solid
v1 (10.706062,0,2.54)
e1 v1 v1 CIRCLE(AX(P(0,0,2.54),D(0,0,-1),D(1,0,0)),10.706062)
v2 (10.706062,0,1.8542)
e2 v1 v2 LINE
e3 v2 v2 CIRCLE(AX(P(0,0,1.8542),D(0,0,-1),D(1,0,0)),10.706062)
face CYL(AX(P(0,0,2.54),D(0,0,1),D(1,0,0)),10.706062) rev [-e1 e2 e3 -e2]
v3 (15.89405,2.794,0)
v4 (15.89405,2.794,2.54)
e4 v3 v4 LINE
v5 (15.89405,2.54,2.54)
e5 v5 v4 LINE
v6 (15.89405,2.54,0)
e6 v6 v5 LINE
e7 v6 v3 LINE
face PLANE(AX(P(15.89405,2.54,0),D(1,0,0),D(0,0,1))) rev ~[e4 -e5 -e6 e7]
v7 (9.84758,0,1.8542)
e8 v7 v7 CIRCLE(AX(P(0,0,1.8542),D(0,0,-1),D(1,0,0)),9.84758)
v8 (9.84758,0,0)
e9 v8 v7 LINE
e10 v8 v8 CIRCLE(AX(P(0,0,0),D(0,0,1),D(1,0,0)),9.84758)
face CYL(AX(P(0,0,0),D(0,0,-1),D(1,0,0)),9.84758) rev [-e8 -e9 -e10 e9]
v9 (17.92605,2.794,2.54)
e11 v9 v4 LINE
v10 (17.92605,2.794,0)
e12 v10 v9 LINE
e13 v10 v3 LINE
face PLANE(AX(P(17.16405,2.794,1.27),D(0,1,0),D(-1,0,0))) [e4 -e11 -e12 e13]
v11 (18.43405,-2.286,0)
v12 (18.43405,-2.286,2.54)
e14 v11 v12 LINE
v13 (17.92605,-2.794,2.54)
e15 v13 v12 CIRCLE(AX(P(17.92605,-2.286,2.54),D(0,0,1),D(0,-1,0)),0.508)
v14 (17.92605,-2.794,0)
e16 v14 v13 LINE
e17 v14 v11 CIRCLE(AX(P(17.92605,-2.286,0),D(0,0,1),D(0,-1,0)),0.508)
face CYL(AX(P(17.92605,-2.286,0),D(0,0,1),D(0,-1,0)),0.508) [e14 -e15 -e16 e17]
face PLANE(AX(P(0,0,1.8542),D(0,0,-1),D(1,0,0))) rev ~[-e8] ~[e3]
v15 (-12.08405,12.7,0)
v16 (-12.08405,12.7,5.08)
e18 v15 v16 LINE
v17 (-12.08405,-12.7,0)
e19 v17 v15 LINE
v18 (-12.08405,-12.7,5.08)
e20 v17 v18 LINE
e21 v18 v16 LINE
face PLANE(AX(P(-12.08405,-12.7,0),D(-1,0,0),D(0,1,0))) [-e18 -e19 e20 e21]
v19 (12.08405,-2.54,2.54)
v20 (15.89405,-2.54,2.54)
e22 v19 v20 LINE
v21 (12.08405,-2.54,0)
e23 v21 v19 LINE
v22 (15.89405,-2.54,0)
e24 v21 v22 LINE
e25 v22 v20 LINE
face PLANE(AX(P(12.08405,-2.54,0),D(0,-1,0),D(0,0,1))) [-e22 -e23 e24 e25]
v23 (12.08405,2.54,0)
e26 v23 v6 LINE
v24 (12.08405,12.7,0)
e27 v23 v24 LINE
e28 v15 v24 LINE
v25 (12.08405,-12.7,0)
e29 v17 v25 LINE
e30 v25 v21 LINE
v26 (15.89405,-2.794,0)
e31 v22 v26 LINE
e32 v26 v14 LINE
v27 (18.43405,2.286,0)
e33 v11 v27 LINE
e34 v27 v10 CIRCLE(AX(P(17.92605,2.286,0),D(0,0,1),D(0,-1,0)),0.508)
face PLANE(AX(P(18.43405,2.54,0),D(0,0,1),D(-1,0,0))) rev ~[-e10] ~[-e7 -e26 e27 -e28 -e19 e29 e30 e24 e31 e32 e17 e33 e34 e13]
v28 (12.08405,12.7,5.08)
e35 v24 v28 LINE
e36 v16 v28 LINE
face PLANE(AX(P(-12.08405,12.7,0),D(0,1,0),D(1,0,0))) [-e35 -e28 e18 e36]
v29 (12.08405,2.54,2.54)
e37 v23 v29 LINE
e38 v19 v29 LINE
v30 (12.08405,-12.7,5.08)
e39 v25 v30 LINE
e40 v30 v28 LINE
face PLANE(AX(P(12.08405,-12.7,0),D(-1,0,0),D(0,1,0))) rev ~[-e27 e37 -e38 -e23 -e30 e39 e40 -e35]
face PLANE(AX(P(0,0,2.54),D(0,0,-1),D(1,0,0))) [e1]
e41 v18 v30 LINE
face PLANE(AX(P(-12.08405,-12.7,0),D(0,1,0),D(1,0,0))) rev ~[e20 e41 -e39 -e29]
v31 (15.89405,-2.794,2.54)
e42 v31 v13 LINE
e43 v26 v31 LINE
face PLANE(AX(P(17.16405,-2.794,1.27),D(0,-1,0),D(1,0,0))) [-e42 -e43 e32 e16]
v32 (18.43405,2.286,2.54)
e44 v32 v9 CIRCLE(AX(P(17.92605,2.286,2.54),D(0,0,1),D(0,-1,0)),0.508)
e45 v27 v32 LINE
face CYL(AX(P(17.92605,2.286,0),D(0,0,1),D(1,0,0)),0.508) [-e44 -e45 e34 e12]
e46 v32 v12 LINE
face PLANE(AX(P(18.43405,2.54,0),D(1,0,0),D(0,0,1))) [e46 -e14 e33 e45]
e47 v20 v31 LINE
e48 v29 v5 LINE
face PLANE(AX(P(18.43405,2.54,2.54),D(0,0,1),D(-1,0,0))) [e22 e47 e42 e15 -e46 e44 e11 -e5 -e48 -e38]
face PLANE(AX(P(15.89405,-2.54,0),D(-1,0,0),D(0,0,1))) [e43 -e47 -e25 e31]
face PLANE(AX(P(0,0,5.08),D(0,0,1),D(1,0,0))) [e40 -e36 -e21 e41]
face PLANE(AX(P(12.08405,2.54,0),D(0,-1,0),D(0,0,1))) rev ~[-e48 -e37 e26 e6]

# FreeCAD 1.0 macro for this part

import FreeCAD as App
import Part
import Sketcher
from FreeCAD import Vector
Q = App.Units.Quantity


def edges_at(feature, points):
    """Names of the edges that pass closest to the given points."""
    edges = feature.Shape.Edges
    near = lambda p: min(range(len(edges)), key=lambda i: edges[i].distToShape(Part.Vertex(*p))[0])
    return sorted({f"Edge{near(p) + 1}" for p in points})

doc = App.newDocument("Part")
params = doc.addObject("Spreadsheet::Sheet", "Params")
for row, (alias, value) in enumerate([
    ("sketch1_height", "1 in"),
    ("pad1_length", "0.2 in"),
    ("pocket1_length", "0.1 in"),
    ("pocket2_length", "0.027 in"),
    ("sketch4_width", "0.2 in"),
    ("sketch4_height", "0.1 in"),
    ("pad2_length", "0.25 in"),
    ("sketch5_width", "0.1 in"),
    ("pad3_length", "0.01 in"),
    ("fillet_radius", "0.02 in"),
    ("sketch6_width", "0.1 in"),
    ("pad4_length", "0.01 in"),
    ("fillet2_radius", "0.02 in"),
], start=1):
    params.set(f"A{row}", alias)
    params.set(f"B{row}", "=" + value)
    params.setAlias(f"B{row}", alias)

body = doc.addObject("PartDesign::Body", "Body")

sketch1 = body.newObject("Sketcher::SketchObject", "Sketch")
sketch1.AttachmentSupport = (doc.getObject("XY_Plane"), [""])
sketch1.MapMode = "FlatFace"
sketch1.addGeometry([
    Part.LineSegment(Vector(-12, 13, 0), Vector(-12, -13, 0)),
    Part.LineSegment(Vector(-12, -13, 0), Vector(12, -13, 0)),
    Part.LineSegment(Vector(12, -13, 0), Vector(12, 13, 0)),
    Part.LineSegment(Vector(12, 13, 0), Vector(-12, 13, 0)),
], False)
sketch1.addConstraint([
    Sketcher.Constraint("Coincident", 0, 2, 1, 1),
    Sketcher.Constraint("Coincident", 1, 2, 2, 1),
    Sketcher.Constraint("Coincident", 2, 2, 3, 1),
    Sketcher.Constraint("Coincident", 3, 2, 0, 1),
    Sketcher.Constraint("Vertical", 0),
    Sketcher.Constraint("Horizontal", 1),
    Sketcher.Constraint("Vertical", 2),
    Sketcher.Constraint("Horizontal", 3),
    Sketcher.Constraint("Symmetric", 0, 2, 2, 2, -1, 1),
    Sketcher.Constraint("DistanceY", 0, 2, 0, 1, Q("1 in")),
    Sketcher.Constraint("DistanceX", 1, 1, 1, 2, Q("0.9515 in")),
])
sketch1.setExpression("Constraints[9]", "Params.sketch1_height")
pad1 = body.newObject("PartDesign::Pad", "Pad")
pad1.Profile = sketch1
pad1.setExpression("Length", "Params.pad1_length")

sketch2 = body.newObject("Sketcher::SketchObject", "Sketch001")
sketch2.AttachmentSupport = (doc.getObject("XY_Plane"), [""])
sketch2.MapMode = "FlatFace"
sketch2.addGeometry(Part.Circle(Vector(0, 0, 0), Vector(0, 0, 1), 10), False)
sketch2.addConstraint([
    Sketcher.Constraint("Coincident", 0, 3, -1, 1),
    Sketcher.Constraint("Diameter", 0, Q("0.7754 in")),
])
pocket1 = body.newObject("PartDesign::Pocket", "Pocket")
pocket1.Profile = sketch2
pocket1.setExpression("Length", "Params.pocket1_length")
pocket1.Reversed = True

sketch3 = body.newObject("Sketcher::SketchObject", "Sketch002")
sketch3.AttachmentSupport = (doc.getObject("XY_Plane"), [""])
sketch3.MapMode = "FlatFace"
sketch3.AttachmentOffset = App.Placement(Vector(0, 0, 0.1 * 25.4), App.Rotation())
sketch3.addGeometry([
    Part.Circle(Vector(0, 0, 0), Vector(0, 0, 1), 11),
    Part.Circle(Vector(0, 0, 0), Vector(0, 0, 1), 10),
], False)
sketch3.addConstraint([
    Sketcher.Constraint("Coincident", 0, 3, -1, 1),
    Sketcher.Constraint("Coincident", 1, 3, -1, 1),
    Sketcher.Constraint("Diameter", 1, Q("0.7754 in")),
    Sketcher.Constraint("Diameter", 0, Q("21.412124 mm")),
])
pocket2 = body.newObject("PartDesign::Pocket", "Pocket001")
pocket2.Profile = sketch3
pocket2.setExpression("Length", "Params.pocket2_length")

sketch4 = body.newObject("Sketcher::SketchObject", "Sketch003")
sketch4.AttachmentSupport = (doc.getObject("YZ_Plane"), [""])
sketch4.MapMode = "FlatFace"
sketch4.AttachmentOffset = App.Placement(Vector(0, 0, 12.08405), App.Rotation())
sketch4.addGeometry([
    Part.LineSegment(Vector(-2.5, 2.5, 0), Vector(-2.5, 0, 0)),
    Part.LineSegment(Vector(-2.5, 0, 0), Vector(2.5, 0, 0)),
    Part.LineSegment(Vector(2.5, 0, 0), Vector(2.5, 2.5, 0)),
    Part.LineSegment(Vector(2.5, 2.5, 0), Vector(-2.5, 2.5, 0)),
], False)
sketch4.addConstraint([
    Sketcher.Constraint("Coincident", 0, 2, 1, 1),
    Sketcher.Constraint("Coincident", 1, 2, 2, 1),
    Sketcher.Constraint("Coincident", 2, 2, 3, 1),
    Sketcher.Constraint("Coincident", 3, 2, 0, 1),
    Sketcher.Constraint("Vertical", 0),
    Sketcher.Constraint("Horizontal", 1),
    Sketcher.Constraint("Vertical", 2),
    Sketcher.Constraint("Horizontal", 3),
    Sketcher.Constraint("Symmetric", 0, 2, 1, 2, -1, 1),
    Sketcher.Constraint("DistanceX", 1, 1, 1, 2, Q("0.2 in")),
    Sketcher.Constraint("DistanceY", 0, 2, 0, 1, Q("0.1 in")),
])
sketch4.setExpression("Constraints[9]", "Params.sketch4_width")
sketch4.setExpression("Constraints[10]", "Params.sketch4_height")
pad2 = body.newObject("PartDesign::Pad", "Pad001")
pad2.Profile = sketch4
pad2.setExpression("Length", "Params.pad2_length")

sketch5 = body.newObject("Sketcher::SketchObject", "Sketch004")
sketch5.AttachmentSupport = (doc.getObject("XZ_Plane"), [""])
sketch5.MapMode = "FlatFace"
sketch5.AttachmentOffset = App.Placement(Vector(0, 0, 0.1 * 25.4), App.Rotation())
sketch5.addGeometry([
    Part.LineSegment(Vector(15.9, 2.5, 0), Vector(15.9, 0, 0)),
    Part.LineSegment(Vector(15.9, 0, 0), Vector(18.4, 0, 0)),
    Part.LineSegment(Vector(18.4, 0, 0), Vector(18.4, 2.5, 0)),
    Part.LineSegment(Vector(18.4, 2.5, 0), Vector(15.9, 2.5, 0)),
], False)
sketch5.addConstraint([
    Sketcher.Constraint("Coincident", 0, 2, 1, 1),
    Sketcher.Constraint("Coincident", 1, 2, 2, 1),
    Sketcher.Constraint("Coincident", 2, 2, 3, 1),
    Sketcher.Constraint("Coincident", 3, 2, 0, 1),
    Sketcher.Constraint("Vertical", 0),
    Sketcher.Constraint("Horizontal", 1),
    Sketcher.Constraint("Vertical", 2),
    Sketcher.Constraint("Horizontal", 3),
    Sketcher.Constraint("PointOnObject", 0, 2, -1),
    Sketcher.Constraint("Equal", 3, 0),
    Sketcher.Constraint("DistanceX", 1, 1, 1, 2, Q("0.1 in")),
    Sketcher.Constraint("DistanceX", -1, 1, 0, 2, Q("15.89405 mm")),
])
sketch5.setExpression("Constraints[10]", "Params.sketch5_width")
pad3 = body.newObject("PartDesign::Pad", "Pad002")
pad3.Profile = sketch5
pad3.setExpression("Length", "Params.pad3_length")
doc.recompute()

fillet = body.newObject("PartDesign::Fillet", "Fillet")
fillet.Base = (pad3, edges_at(pad3, [(18.434, -2.794, 1.27)]))
fillet.setExpression("Radius", "Params.fillet_radius")

sketch6 = body.newObject("Sketcher::SketchObject", "Sketch005")
sketch6.AttachmentSupport = (doc.getObject("XZ_Plane"), [""])
sketch6.MapMode = "FlatFace"
sketch6.AttachmentOffset = App.Placement(Vector(0, 0, -0.1 * 25.4), App.Rotation())
sketch6.addGeometry([
    Part.LineSegment(Vector(18.4, 2.5, 0), Vector(18.4, 0, 0)),
    Part.LineSegment(Vector(18.4, 0, 0), Vector(15.9, 0, 0)),
    Part.LineSegment(Vector(15.9, 0, 0), Vector(15.9, 2.5, 0)),
    Part.LineSegment(Vector(15.9, 2.5, 0), Vector(18.4, 2.5, 0)),
], False)
sketch6.addConstraint([
    Sketcher.Constraint("Coincident", 0, 2, 1, 1),
    Sketcher.Constraint("Coincident", 1, 2, 2, 1),
    Sketcher.Constraint("Coincident", 2, 2, 3, 1),
    Sketcher.Constraint("Coincident", 3, 2, 0, 1),
    Sketcher.Constraint("Vertical", 0),
    Sketcher.Constraint("Horizontal", 1),
    Sketcher.Constraint("Vertical", 2),
    Sketcher.Constraint("Horizontal", 3),
    Sketcher.Constraint("PointOnObject", 0, 2, -1),
    Sketcher.Constraint("Equal", 3, 0),
    Sketcher.Constraint("DistanceX", 1, 2, 1, 1, Q("0.1 in")),
    Sketcher.Constraint("DistanceX", -1, 1, 0, 2, Q("18.43405 mm")),
])
sketch6.setExpression("Constraints[10]", "Params.sketch6_width")
pad4 = body.newObject("PartDesign::Pad", "Pad003")
pad4.Profile = sketch6
pad4.setExpression("Length", "Params.pad4_length")
pad4.Reversed = True
doc.recompute()

fillet2 = body.newObject("PartDesign::Fillet", "Fillet001")
fillet2.Base = (pad4, edges_at(pad4, [(18.434, 2.794, 1.27)]))
fillet2.setExpression("Radius", "Params.fillet2_radius")

doc.recompute()
